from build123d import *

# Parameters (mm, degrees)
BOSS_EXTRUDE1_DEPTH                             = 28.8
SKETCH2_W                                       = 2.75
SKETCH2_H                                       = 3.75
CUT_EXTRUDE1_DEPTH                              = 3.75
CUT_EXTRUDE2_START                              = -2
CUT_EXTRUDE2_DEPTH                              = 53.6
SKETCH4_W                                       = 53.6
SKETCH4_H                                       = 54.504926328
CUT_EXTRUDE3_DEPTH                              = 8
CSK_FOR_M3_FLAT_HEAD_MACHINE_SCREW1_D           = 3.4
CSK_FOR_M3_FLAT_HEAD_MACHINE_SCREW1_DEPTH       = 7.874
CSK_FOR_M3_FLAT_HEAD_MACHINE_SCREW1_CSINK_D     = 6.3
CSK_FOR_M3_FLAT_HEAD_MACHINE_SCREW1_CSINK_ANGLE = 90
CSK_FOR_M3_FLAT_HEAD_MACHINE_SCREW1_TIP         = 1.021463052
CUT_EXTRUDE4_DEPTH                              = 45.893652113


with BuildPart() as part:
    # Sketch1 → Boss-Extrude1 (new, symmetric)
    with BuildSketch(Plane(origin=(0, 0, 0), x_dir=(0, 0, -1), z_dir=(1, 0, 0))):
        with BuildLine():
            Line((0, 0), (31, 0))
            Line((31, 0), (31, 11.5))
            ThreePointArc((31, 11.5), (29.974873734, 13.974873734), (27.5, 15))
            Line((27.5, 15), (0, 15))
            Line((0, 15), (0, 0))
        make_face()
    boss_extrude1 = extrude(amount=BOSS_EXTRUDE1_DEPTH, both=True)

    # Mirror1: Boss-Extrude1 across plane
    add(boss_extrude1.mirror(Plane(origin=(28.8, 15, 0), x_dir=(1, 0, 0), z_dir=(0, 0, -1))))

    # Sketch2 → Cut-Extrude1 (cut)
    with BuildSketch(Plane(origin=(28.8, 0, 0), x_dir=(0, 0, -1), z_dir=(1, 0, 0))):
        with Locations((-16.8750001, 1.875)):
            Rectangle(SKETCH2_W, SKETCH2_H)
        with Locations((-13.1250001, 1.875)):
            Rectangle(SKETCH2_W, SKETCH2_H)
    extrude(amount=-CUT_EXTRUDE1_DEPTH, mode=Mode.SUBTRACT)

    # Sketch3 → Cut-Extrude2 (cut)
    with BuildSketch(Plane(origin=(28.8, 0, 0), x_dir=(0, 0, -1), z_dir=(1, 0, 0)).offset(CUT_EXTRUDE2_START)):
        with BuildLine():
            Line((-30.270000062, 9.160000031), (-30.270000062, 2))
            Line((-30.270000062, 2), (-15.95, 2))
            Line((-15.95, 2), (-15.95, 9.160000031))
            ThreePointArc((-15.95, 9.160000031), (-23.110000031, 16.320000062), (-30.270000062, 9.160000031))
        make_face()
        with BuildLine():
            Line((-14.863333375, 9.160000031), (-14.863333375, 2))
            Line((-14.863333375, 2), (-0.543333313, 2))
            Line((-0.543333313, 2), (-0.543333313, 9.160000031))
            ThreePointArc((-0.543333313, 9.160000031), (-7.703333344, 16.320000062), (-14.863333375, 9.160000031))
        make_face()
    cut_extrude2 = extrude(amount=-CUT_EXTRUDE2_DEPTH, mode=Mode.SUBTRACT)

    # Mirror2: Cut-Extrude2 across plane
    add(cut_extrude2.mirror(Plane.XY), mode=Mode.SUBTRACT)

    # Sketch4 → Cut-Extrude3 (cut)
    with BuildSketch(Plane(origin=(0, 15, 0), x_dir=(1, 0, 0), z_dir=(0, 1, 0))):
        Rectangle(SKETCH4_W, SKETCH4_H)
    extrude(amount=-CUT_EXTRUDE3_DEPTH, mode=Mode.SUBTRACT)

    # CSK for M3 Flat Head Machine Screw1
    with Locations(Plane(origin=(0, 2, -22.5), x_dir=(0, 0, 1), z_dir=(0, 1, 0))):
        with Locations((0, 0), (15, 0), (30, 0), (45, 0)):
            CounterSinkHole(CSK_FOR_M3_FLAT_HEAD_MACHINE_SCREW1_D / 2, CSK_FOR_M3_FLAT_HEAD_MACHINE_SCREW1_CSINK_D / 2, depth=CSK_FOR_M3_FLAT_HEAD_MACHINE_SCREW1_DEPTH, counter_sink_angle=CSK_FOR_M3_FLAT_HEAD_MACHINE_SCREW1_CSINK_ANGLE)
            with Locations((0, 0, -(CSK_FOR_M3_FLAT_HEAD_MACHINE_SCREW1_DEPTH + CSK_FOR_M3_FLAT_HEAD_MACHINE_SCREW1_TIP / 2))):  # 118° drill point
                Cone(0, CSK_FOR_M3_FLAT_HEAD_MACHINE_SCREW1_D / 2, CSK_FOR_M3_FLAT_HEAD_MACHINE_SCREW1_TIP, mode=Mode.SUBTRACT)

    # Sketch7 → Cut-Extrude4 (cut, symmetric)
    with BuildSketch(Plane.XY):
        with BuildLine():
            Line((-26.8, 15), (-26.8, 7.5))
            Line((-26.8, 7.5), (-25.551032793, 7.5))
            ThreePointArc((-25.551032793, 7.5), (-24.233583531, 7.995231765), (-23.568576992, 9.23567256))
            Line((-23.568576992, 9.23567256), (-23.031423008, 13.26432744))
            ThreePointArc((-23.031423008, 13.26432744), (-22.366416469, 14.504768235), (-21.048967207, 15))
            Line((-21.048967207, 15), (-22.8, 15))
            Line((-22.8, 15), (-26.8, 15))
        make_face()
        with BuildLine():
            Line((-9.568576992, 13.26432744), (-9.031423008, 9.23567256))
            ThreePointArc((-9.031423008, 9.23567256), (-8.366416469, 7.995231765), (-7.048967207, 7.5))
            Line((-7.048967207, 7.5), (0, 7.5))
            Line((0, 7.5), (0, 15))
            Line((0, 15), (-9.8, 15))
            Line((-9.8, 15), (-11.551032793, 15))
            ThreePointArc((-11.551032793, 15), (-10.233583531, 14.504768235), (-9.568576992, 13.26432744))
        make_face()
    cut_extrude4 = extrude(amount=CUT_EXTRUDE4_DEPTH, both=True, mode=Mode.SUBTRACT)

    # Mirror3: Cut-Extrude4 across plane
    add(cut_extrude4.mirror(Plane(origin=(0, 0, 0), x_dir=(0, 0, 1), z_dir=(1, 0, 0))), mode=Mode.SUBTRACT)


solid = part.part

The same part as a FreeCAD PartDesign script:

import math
import FreeCAD as App
import Part
import Sketcher

V = App.Vector
Q = App.Units.Quantity


def add_polygon(sketch, points):
    """Adds a closed chain of lines whose ends are joined by coincident constraints."""
    first, n = sketch.GeometryCount, len(points)
    for a, b in zip(points, points[1:] + points[:1]):
        sketch.addGeometry(Part.LineSegment(App.Vector(*a, 0), App.Vector(*b, 0)), False)
    for i in range(n):
        sketch.addConstraint(Sketcher.Constraint("Coincident", first + i, 2, first + (i + 1) % n, 1))

doc = App.newDocument("Part")
body = doc.addObject("PartDesign::Body", "Body")

sketch1 = body.newObject("Sketcher::SketchObject", "Sketch")
sketch1.AttachmentSupport = (doc.getObject("YZ_Plane"), [""])
sketch1.MapMode = "FlatFace"
sketch1.addGeometry([
    Part.LineSegment(V(0, 0, 0), V(0, -31, 0)),
    Part.LineSegment(V(0, -31, 0), V(11.5, -31, 0)),
    Part.ArcOfCircle(Part.Circle(V(11.5, -27.5, 0), V(0, 0, 1), 3.5), math.radians(-90), math.radians(0)),
    Part.LineSegment(V(15, -27.5, 0), V(15, 0, 0)),
    Part.LineSegment(V(15, 0, 0), V(0, 0, 0)),
], False)
sketch1.addConstraint([
    Sketcher.Constraint("Coincident", 0, 2, 1, 1),
    Sketcher.Constraint("Tangent", 1, 2, 2, 1),
    Sketcher.Constraint("Tangent", 2, 2, 3, 1),
    Sketcher.Constraint("Coincident", 3, 2, 4, 1),
    Sketcher.Constraint("Coincident", 4, 2, 0, 1),
    Sketcher.Constraint("Vertical", 0),
    Sketcher.Constraint("Horizontal", 1),
    Sketcher.Constraint("Vertical", 3),
    Sketcher.Constraint("Horizontal", 4),
    Sketcher.Constraint("Coincident", 4, 2, -1, 1),
    Sketcher.Constraint("Radius", 2, Q("3.5 mm")),
    Sketcher.Constraint("DistanceX", 4, 2, 4, 1, Q("15 mm")),
    Sketcher.Constraint("DistanceY", 0, 2, 0, 1, Q("31 mm")),
])
pad1 = body.newObject("PartDesign::Pad", "Pad")
pad1.Profile = sketch1
pad1.Length = 57.6
pad1.Midplane = True
doc.recompute()

mirrored = body.newObject("PartDesign::Mirrored", "Mirrored")
mirrored.Originals = [pad1]
mirrored.MirrorPlane = (doc.getObject("XY_Plane"), [""])
body.Tip = mirrored

sketch2 = body.newObject("Sketcher::SketchObject", "Sketch001")
sketch2.AttachmentSupport = (doc.getObject("YZ_Plane"), [""])
sketch2.MapMode = "FlatFace"
sketch2.AttachmentOffset = App.Placement(V(0, 0, 28.8), App.Rotation())
add_polygon(sketch2, [(3.8, 18.3), (0, 18.3), (0, 15.5), (3.8, 15.5)])
add_polygon(sketch2, [(3.8, 14.5), (0, 14.5), (0, 11.8), (3.8, 11.8)])
sketch2.addConstraint([
    Sketcher.Constraint("Horizontal", 0),
    Sketcher.Constraint("Vertical", 1),
    Sketcher.Constraint("Horizontal", 2),
    Sketcher.Constraint("Vertical", 3),
    Sketcher.Constraint("Horizontal", 4),
    Sketcher.Constraint("Vertical", 5),
    Sketcher.Constraint("Horizontal", 6),
    Sketcher.Constraint("Vertical", 7),
    Sketcher.Constraint("PointOnObject", 0, 2, -2),
    Sketcher.Constraint("PointOnObject", 4, 2, -2),
    Sketcher.Constraint("Vertical", 3, 2, 6, 2),
    Sketcher.Constraint("Equal", 3, 5),
    Sketcher.Constraint("DistanceY", 4, 2, 1, 2, Q("1 mm")),
    Sketcher.Constraint("DistanceX", 0, 2, 0, 1, Q("3.75 mm")),
    Sketcher.Constraint("DistanceY", 1, 2, 1, 1, Q("2.75 mm")),
    Sketcher.Constraint("DistanceY", -1, 1, 1, 2, Q("15.5 mm")),
])
pocket1 = body.newObject("PartDesign::Pocket", "Pocket")
pocket1.Profile = sketch2
pocket1.Length = 3.75

sketch3 = body.newObject("Sketcher::SketchObject", "Sketch002")
sketch3.AttachmentSupport = (doc.getObject("YZ_Plane"), [""])
sketch3.MapMode = "FlatFace"
sketch3.AttachmentOffset = App.Placement(V(0, 0, 26.8), App.Rotation())
sketch3.addGeometry([
    Part.LineSegment(V(9, 30, 0), V(2, 30, 0)),
    Part.LineSegment(V(2, 30, 0), V(2, 16, 0)),
    Part.LineSegment(V(2, 16, 0), V(9, 16, 0)),
    Part.ArcOfCircle(Part.Circle(V(9, 23, 0), V(0, 0, 1), 7), math.radians(-90), math.radians(90)),
    Part.LineSegment(V(9, 15, 0), V(2, 15, 0)),
    Part.LineSegment(V(2, 15, 0), V(2, 1, 0)),
    Part.LineSegment(V(2, 1, 0), V(9, 1, 0)),
    Part.ArcOfCircle(Part.Circle(V(9, 8, 0), V(0, 0, 1), 7), math.radians(-90), math.radians(90)),
], False)
sketch3.addConstraint([
    Sketcher.Constraint("Coincident", 0, 2, 1, 1),
    Sketcher.Constraint("Coincident", 1, 2, 2, 1),
    Sketcher.Constraint("Tangent", 2, 2, 3, 1),
    Sketcher.Constraint("Tangent", 3, 2, 0, 1),
    Sketcher.Constraint("Coincident", 4, 2, 5, 1),
    Sketcher.Constraint("Coincident", 5, 2, 6, 1),
    Sketcher.Constraint("Tangent", 6, 2, 7, 1),
    Sketcher.Constraint("Tangent", 7, 2, 4, 1),
    Sketcher.Constraint("Horizontal", 0),
    Sketcher.Constraint("Vertical", 1),
    Sketcher.Constraint("Horizontal", 2),
    Sketcher.Constraint("Horizontal", 4),
    Sketcher.Constraint("Vertical", 5),
    Sketcher.Constraint("Horizontal", 6),
    Sketcher.Constraint("Equal", 3, 7),
    Sketcher.Constraint("Vertical", 3, 3, 7, 3),
    Sketcher.Constraint("Vertical", 1, 2, 4, 2),
    Sketcher.Constraint("Radius", 3, Q("7.16 mm")),
    Sketcher.Constraint("DistanceX", -1, 1, 0, 2, Q("2 mm")),
    Sketcher.Constraint("DistanceX", 0, 2, 0, 1, Q("7.16 mm")),
    Sketcher.Constraint("DistanceY", -1, 1, 3, 3, Q("23.11 mm")),
    Sketcher.Constraint("DistanceY", -1, 1, 7, 3, Q("7.703333 mm")),
])
pocket2 = body.newObject("PartDesign::Pocket", "Pocket001")
pocket2.Profile = sketch3
pocket2.Length = 53.6
doc.recompute()

mirrored2 = body.newObject("PartDesign::Mirrored", "Mirrored001")
mirrored2.Originals = [pocket2]
mirrored2.MirrorPlane = (doc.getObject("XY_Plane"), [""])
body.Tip = mirrored2

sketch4 = body.newObject("Sketcher::SketchObject", "Sketch003")
sketch4.AttachmentSupport = (doc.getObject("XZ_Plane"), [""])
sketch4.MapMode = "FlatFace"
sketch4.AttachmentOffset = App.Placement(V(0, 0, -15), App.Rotation())
add_polygon(sketch4, [(-27, -27), (-27, 27), (27, 27), (27, -27)])
sketch4.addConstraint([
    Sketcher.Constraint("Vertical", 0),
    Sketcher.Constraint("Horizontal", 1),
    Sketcher.Constraint("Vertical", 2),
    Sketcher.Constraint("Horizontal", 3),
    Sketcher.Constraint("Symmetric", 0, 2, 2, 2, -1, 1),
    Sketcher.Constraint("DistanceX", 1, 1, 1, 2, Q("53.6 mm")),
    Sketcher.Constraint("DistanceY", 0, 1, 0, 2, Q("54.504926 mm")),
])
pocket3 = body.newObject("PartDesign::Pocket", "Pocket002")
pocket3.Profile = sketch4
pocket3.Length = 8
pocket3.Reversed = True

sketch5 = body.newObject("Sketcher::SketchObject", "Sketch004")
sketch5.AttachmentSupport = (doc.getObject("XZ_Plane"), [""])
sketch5.MapMode = "FlatFace"
sketch5.AttachmentOffset = App.Placement(V(0, 0, -2), App.Rotation())
sketch5.addGeometry([
    Part.Circle(V(0, -22.5, 0), V(0, 0, 1), 1.7),
    Part.Circle(V(0, -7.5, 0), V(0, 0, 1), 1.7),
    Part.Circle(V(0, 7.5, 0), V(0, 0, 1), 1.7),
    Part.Circle(V(0, 22.5, 0), V(0, 0, 1), 1.7),
], False)
sketch5.addConstraint([
    Sketcher.Constraint("Equal", 0, 1),
    Sketcher.Constraint("Equal", 1, 2),
    Sketcher.Constraint("Equal", 2, 3),
    Sketcher.Constraint("Symmetric", 1, 3, 2, 3, -1, 1),
    Sketcher.Constraint("Symmetric", 0, 3, 3, 3, -1, 1),
    Sketcher.Constraint("PointOnObject", 0, 3, -2),
    Sketcher.Constraint("PointOnObject", 1, 3, -2),
    Sketcher.Constraint("Diameter", 0, Q("3.4 mm")),
    Sketcher.Constraint("DistanceY", 0, 3, 1, 3, Q("15 mm")),
    Sketcher.Constraint("DistanceY", 1, 3, 2, 3, Q("15 mm")),
])
doc.recompute()
hole = body.newObject("PartDesign::Hole", "Hole")
hole.Profile = sketch5
hole.ThreadType = "None"
hole.Diameter = 3.4
hole.DepthType = "Dimension"
hole.Depth = 7.874
hole.DrillPoint = "Angled"
hole.DrillPointAngle = 118
hole.HoleCutType = "Countersink"
hole.HoleCutDiameter = 6.3
hole.HoleCutCountersinkAngle = 90
hole.Reversed = True

sketch6 = body.newObject("Sketcher::SketchObject", "Sketch005")
sketch6.AttachmentSupport = (doc.getObject("XY_Plane"), [""])
sketch6.MapMode = "FlatFace"
sketch6.addGeometry([
    Part.LineSegment(V(-26.8, 15, 0), V(-26.8, 7.5, 0)),
    Part.LineSegment(V(-26.8, 7.5, 0), V(-25.6, 7.5, 0)),
    Part.ArcOfCircle(Part.Circle(V(-25.6, 9.5, 0), V(0, 0, 1), 2), math.radians(-90), math.radians(-8)),
    Part.LineSegment(V(-23.6, 9.2, 0), V(-23, 13.3, 0)),
    Part.ArcOfCircle(Part.Circle(V(-21, 13, 0), V(0, 0, 1), 2), math.radians(90), math.radians(172)),
    Part.LineSegment(V(-21, 15, 0), V(-26.8, 15, 0)),
    Part.LineSegment(V(-9.6, 13.3, 0), V(-9, 9.2, 0)),
    Part.ArcOfCircle(Part.Circle(V(-7, 9.5, 0), V(0, 0, 1), 2), math.radians(-172), math.radians(-90)),
    Part.LineSegment(V(-7, 7.5, 0), V(0, 7.5, 0)),
    Part.LineSegment(V(0, 7.5, 0), V(0, 15, 0)),
    Part.LineSegment(V(0, 15, 0), V(-11.6, 15, 0)),
    Part.ArcOfCircle(Part.Circle(V(-11.6, 13, 0), V(0, 0, 1), 2), math.radians(8), math.radians(90)),
], False)
sketch6.addConstraint([
    Sketcher.Constraint("Coincident", 0, 2, 1, 1),
    Sketcher.Constraint("Tangent", 1, 2, 2, 1),
    Sketcher.Constraint("Tangent", 2, 2, 3, 1),
    Sketcher.Constraint("Tangent", 3, 2, 4, 2),
    Sketcher.Constraint("Tangent", 4, 1, 5, 1),
    Sketcher.Constraint("Coincident", 5, 2, 0, 1),
    Sketcher.Constraint("Tangent", 6, 2, 7, 1),
    Sketcher.Constraint("Tangent", 7, 2, 8, 1),
    Sketcher.Constraint("Coincident", 8, 2, 9, 1),
    Sketcher.Constraint("Coincident", 9, 2, 10, 1),
    Sketcher.Constraint("Tangent", 10, 2, 11, 2),
    Sketcher.Constraint("Tangent", 11, 1, 6, 1),
    Sketcher.Constraint("Vertical", 0),
    Sketcher.Constraint("Horizontal", 1),
    Sketcher.Constraint("Horizontal", 5),
    Sketcher.Constraint("Horizontal", 8),
    Sketcher.Constraint("Vertical", 9),
    Sketcher.Constraint("Horizontal", 10),
    Sketcher.Constraint("Equal", 2, 4),
    Sketcher.Constraint("Equal", 4, 7),
    Sketcher.Constraint("Equal", 7, 11),
    Sketcher.Constraint("PointOnObject", 8, 2, -2),
    Sketcher.Constraint("Horizontal", 2, 3, 7, 3),
    Sketcher.Constraint("Horizontal", 4, 3, 11, 3),
    Sketcher.Constraint("Horizontal", 2, 2, 6, 2),
    Sketcher.Constraint("Radius", 2, Q("2 mm")),
    Sketcher.Constraint("DistanceY", 0, 2, 0, 1, Q("7.5 mm")),
    Sketcher.Constraint("DistanceY", -1, 1, 4, 3, Q("13 mm")),
    Sketcher.Constraint("DistanceX", 4, 3, 7, 3, Q("14 mm")),
    Sketcher.Constraint("DistanceX", 0, 2, -1, 1, Q("26.8 mm")),
    Sketcher.Constraint("DistanceX", 1, 1, 1, 2, Q("1.248967 mm")),
    Sketcher.Constraint("DistanceX", 5, 2, 5, 1, Q("5.751033 mm")),
])
pocket4 = body.newObject("PartDesign::Pocket", "Pocket003")
pocket4.Profile = sketch6
pocket4.Length = 91.787304
pocket4.Midplane = True
doc.recompute()

mirrored3 = body.newObject("PartDesign::Mirrored", "Mirrored002")
mirrored3.Originals = [pocket4]
mirrored3.MirrorPlane = (doc.getObject("YZ_Plane"), [""])
body.Tip = mirrored3

doc.recompute()
